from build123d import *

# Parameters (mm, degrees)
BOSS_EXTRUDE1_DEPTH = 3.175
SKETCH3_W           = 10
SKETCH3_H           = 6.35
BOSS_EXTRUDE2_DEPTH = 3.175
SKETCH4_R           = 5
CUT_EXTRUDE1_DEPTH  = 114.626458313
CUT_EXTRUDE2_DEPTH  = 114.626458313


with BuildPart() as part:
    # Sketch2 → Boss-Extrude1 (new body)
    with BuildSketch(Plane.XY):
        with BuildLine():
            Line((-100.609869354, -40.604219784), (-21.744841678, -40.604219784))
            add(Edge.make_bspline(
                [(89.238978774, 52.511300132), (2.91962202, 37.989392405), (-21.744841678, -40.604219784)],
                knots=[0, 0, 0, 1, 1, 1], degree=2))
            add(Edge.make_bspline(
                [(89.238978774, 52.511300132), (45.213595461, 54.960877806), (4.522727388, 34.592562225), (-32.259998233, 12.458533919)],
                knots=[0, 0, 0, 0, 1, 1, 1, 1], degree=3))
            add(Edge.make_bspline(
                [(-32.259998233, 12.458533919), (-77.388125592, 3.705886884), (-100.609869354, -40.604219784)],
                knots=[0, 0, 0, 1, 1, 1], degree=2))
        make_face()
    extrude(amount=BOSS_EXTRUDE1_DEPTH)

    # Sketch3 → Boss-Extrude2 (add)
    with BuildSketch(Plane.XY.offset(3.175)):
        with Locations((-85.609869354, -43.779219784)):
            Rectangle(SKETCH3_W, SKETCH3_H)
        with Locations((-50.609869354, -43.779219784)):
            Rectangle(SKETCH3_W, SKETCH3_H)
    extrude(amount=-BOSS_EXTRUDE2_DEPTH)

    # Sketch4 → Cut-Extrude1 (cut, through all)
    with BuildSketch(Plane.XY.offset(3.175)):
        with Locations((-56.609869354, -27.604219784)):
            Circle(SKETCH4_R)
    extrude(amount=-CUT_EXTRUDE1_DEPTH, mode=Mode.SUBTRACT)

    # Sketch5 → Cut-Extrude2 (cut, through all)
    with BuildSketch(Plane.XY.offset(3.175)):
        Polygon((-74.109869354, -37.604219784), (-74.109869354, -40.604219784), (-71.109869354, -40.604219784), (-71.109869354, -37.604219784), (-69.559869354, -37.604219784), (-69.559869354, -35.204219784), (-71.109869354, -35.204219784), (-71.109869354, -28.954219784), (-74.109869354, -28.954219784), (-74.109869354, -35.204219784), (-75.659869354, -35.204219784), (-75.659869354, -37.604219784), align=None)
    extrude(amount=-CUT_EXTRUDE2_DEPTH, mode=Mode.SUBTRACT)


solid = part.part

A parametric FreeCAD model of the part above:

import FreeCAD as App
import Part
import Sketcher

V = App.Vector
Q = App.Units.Quantity


def add_polygon(sketch, points):
    """Adds a closed chain of lines whose ends are joined by coincident constraints."""
    first, n = sketch.GeometryCount, len(points)
    for a, b in zip(points, points[1:] + points[:1]):
        sketch.addGeometry(Part.LineSegment(App.Vector(*a, 0), App.Vector(*b, 0)), False)
    for i in range(n):
        sketch.addConstraint(Sketcher.Constraint("Coincident", first + i, 2, first + (i + 1) % n, 1))

doc = App.newDocument("Part")
body = doc.addObject("PartDesign::Body", "Body")

sketch1 = body.newObject("Sketcher::SketchObject", "Sketch")
sketch1.AttachmentSupport = (doc.getObject("XY_Plane"), [""])
sketch1.MapMode = "FlatFace"
sketch1.addGeometry(Part.LineSegment(V(-100.609869, -40.60422, 0), V(-21.744842, -40.60422, 0)), False)
sketch1.addGeometry(Part.BSplineCurve([V(89.238979, 52.5113, 0), V(2.919622, 37.989392, 0), V(-21.744842, -40.60422, 0)], [3, 3], [0, 1], False, 2, [1, 1, 1], False), False)
sketch1.addGeometry(Part.BSplineCurve([V(89.238979, 52.5113, 0), V(45.213595, 54.960878, 0), V(4.522727, 34.592562, 0), V(-32.259998, 12.458534, 0)], [4, 4], [0, 1], False, 3, [1, 1, 1, 1], False), False)
sketch1.addGeometry(Part.BSplineCurve([V(-32.259998, 12.458534, 0), V(-77.388126, 3.705887, 0), V(-100.609869, -40.60422, 0)], [3, 3], [0, 1], False, 2, [1, 1, 1], False), False)
sketch1.addConstraint(Sketcher.Constraint("Block", 1))
sketch1.addConstraint(Sketcher.Constraint("Block", 2))
sketch1.addConstraint(Sketcher.Constraint("Block", 3))
sketch1.addConstraint(Sketcher.Constraint("Coincident", 0, 2, 1, 2))
sketch1.addConstraint(Sketcher.Constraint("Coincident", 3, 2, 0, 1))
pad1 = body.newObject("PartDesign::Pad", "Pad")
pad1.Profile = sketch1
pad1.Length = 3.175

sketch2 = body.newObject("Sketcher::SketchObject", "Sketch001")
sketch2.AttachmentSupport = (doc.getObject("XY_Plane"), [""])
sketch2.MapMode = "FlatFace"
sketch2.AttachmentOffset = App.Placement(V(0, 0, 3.175), App.Rotation())
add_polygon(sketch2, [(-91, -41), (-91, -47), (-81, -47), (-81, -41)])
add_polygon(sketch2, [(-56, -41), (-56, -47), (-46, -47), (-46, -41)])
sketch2.addConstraint(Sketcher.Constraint("Vertical", 0))
sketch2.addConstraint(Sketcher.Constraint("Horizontal", 1))
sketch2.addConstraint(Sketcher.Constraint("Vertical", 2))
sketch2.addConstraint(Sketcher.Constraint("Horizontal", 3))
sketch2.addConstraint(Sketcher.Constraint("Vertical", 4))
sketch2.addConstraint(Sketcher.Constraint("Horizontal", 5))
sketch2.addConstraint(Sketcher.Constraint("Vertical", 6))
sketch2.addConstraint(Sketcher.Constraint("Horizontal", 7))
sketch2.addConstraint(Sketcher.Constraint("Horizontal", 1, 2, 4, 2))
sketch2.addConstraint(Sketcher.Constraint("Horizontal", 3, 2, 6, 2))
sketch2.addConstraint(Sketcher.Constraint("Equal", 3, 5))
sketch2.addConstraint(Sketcher.Constraint("DistanceX", 1, 1, 1, 2, Q("10 mm")))
sketch2.addConstraint(Sketcher.Constraint("DistanceX", 1, 2, 4, 2, Q("25 mm")))
sketch2.addConstraint(Sketcher.Constraint("DistanceY", 0, 2, 0, 1, Q("6.35 mm")))
sketch2.addConstraint(Sketcher.Constraint("DistanceX", 0, 2, -1, 1, Q("90.609869 mm")))
sketch2.addConstraint(Sketcher.Constraint("DistanceY", 0, 2, -1, 1, Q("46.95422 mm")))
pad2 = body.newObject("PartDesign::Pad", "Pad001")
pad2.Profile = sketch2
pad2.Length = 3.175
pad2.Reversed = True

sketch3 = body.newObject("Sketcher::SketchObject", "Sketch002")
sketch3.AttachmentSupport = (doc.getObject("XY_Plane"), [""])
sketch3.MapMode = "FlatFace"
sketch3.AttachmentOffset = App.Placement(V(0, 0, 3.175), App.Rotation())
sketch3.addGeometry(Part.Circle(V(-57, -28, 0), V(0, 0, 1), 5), False)
sketch3.addConstraint(Sketcher.Constraint("Diameter", 0, Q("10 mm")))
sketch3.addConstraint(Sketcher.Constraint("DistanceX", 0, 3, -1, 1, Q("56.609869 mm")))
sketch3.addConstraint(Sketcher.Constraint("DistanceY", 0, 3, -1, 1, Q("27.60422 mm")))
pocket1 = body.newObject("PartDesign::Pocket", "Pocket")
pocket1.Profile = sketch3
pocket1.Type = "ThroughAll"

sketch4 = body.newObject("Sketcher::SketchObject", "Sketch003")
sketch4.AttachmentSupport = (doc.getObject("XY_Plane"), [""])
sketch4.MapMode = "FlatFace"
sketch4.AttachmentOffset = App.Placement(V(0, 0, 3.175), App.Rotation())
add_polygon(sketch4, [(-74.1, -37.6), (-74.1, -40.6), (-71.1, -40.6), (-71.1, -37.6), (-69.6, -37.6), (-69.6, -35.2), (-71.1, -35.2), (-71.1, -29), (-74.1, -29), (-74.1, -35.2), (-75.7, -35.2), (-75.7, -37.6)])
sketch4.addConstraint(Sketcher.Constraint("Vertical", 0))
sketch4.addConstraint(Sketcher.Constraint("Horizontal", 1))
sketch4.addConstraint(Sketcher.Constraint("Vertical", 2))
sketch4.addConstraint(Sketcher.Constraint("Horizontal", 3))
sketch4.addConstraint(Sketcher.Constraint("Vertical", 4))
sketch4.addConstraint(Sketcher.Constraint("Horizontal", 5))
sketch4.addConstraint(Sketcher.Constraint("Vertical", 6))
sketch4.addConstraint(Sketcher.Constraint("Horizontal", 7))
sketch4.addConstraint(Sketcher.Constraint("Vertical", 8))
sketch4.addConstraint(Sketcher.Constraint("Horizontal", 9))
sketch4.addConstraint(Sketcher.Constraint("Vertical", 10))
sketch4.addConstraint(Sketcher.Constraint("Horizontal", 11))
sketch4.addConstraint(Sketcher.Constraint("Horizontal", 5, 2, 8, 2))
sketch4.addConstraint(Sketcher.Constraint("Horizontal", 3, 2, 10, 2))
sketch4.addConstraint(Sketcher.Constraint("Vertical", 2, 2, 5, 2))
sketch4.addConstraint(Sketcher.Constraint("Vertical", 0, 2, 7, 2))
sketch4.addConstraint(Sketcher.Constraint("Equal", 5, 9))
sketch4.addConstraint(Sketcher.Constraint("Equal", 7, 0))
sketch4.addConstraint(Sketcher.Constraint("DistanceX", 1, 1, 1, 2, Q("3 mm")))
sketch4.addConstraint(Sketcher.Constraint("DistanceY", 4, 1, 4, 2, Q("2.4 mm")))
sketch4.addConstraint(Sketcher.Constraint("DistanceX", 3, 1, 3, 2, Q("1.55 mm")))
sketch4.addConstraint(Sketcher.Constraint("DistanceY", 6, 1, 6, 2, Q("6.25 mm")))
sketch4.addConstraint(Sketcher.Constraint("DistanceX", 0, 2, -1, 1, Q("74.109869 mm")))
sketch4.addConstraint(Sketcher.Constraint("DistanceY", 0, 2, -1, 1, Q("40.60422 mm")))
pocket2 = body.newObject("PartDesign::Pocket", "Pocket001")
pocket2.Profile = sketch4
pocket2.Type = "ThroughAll"

doc.recompute()
